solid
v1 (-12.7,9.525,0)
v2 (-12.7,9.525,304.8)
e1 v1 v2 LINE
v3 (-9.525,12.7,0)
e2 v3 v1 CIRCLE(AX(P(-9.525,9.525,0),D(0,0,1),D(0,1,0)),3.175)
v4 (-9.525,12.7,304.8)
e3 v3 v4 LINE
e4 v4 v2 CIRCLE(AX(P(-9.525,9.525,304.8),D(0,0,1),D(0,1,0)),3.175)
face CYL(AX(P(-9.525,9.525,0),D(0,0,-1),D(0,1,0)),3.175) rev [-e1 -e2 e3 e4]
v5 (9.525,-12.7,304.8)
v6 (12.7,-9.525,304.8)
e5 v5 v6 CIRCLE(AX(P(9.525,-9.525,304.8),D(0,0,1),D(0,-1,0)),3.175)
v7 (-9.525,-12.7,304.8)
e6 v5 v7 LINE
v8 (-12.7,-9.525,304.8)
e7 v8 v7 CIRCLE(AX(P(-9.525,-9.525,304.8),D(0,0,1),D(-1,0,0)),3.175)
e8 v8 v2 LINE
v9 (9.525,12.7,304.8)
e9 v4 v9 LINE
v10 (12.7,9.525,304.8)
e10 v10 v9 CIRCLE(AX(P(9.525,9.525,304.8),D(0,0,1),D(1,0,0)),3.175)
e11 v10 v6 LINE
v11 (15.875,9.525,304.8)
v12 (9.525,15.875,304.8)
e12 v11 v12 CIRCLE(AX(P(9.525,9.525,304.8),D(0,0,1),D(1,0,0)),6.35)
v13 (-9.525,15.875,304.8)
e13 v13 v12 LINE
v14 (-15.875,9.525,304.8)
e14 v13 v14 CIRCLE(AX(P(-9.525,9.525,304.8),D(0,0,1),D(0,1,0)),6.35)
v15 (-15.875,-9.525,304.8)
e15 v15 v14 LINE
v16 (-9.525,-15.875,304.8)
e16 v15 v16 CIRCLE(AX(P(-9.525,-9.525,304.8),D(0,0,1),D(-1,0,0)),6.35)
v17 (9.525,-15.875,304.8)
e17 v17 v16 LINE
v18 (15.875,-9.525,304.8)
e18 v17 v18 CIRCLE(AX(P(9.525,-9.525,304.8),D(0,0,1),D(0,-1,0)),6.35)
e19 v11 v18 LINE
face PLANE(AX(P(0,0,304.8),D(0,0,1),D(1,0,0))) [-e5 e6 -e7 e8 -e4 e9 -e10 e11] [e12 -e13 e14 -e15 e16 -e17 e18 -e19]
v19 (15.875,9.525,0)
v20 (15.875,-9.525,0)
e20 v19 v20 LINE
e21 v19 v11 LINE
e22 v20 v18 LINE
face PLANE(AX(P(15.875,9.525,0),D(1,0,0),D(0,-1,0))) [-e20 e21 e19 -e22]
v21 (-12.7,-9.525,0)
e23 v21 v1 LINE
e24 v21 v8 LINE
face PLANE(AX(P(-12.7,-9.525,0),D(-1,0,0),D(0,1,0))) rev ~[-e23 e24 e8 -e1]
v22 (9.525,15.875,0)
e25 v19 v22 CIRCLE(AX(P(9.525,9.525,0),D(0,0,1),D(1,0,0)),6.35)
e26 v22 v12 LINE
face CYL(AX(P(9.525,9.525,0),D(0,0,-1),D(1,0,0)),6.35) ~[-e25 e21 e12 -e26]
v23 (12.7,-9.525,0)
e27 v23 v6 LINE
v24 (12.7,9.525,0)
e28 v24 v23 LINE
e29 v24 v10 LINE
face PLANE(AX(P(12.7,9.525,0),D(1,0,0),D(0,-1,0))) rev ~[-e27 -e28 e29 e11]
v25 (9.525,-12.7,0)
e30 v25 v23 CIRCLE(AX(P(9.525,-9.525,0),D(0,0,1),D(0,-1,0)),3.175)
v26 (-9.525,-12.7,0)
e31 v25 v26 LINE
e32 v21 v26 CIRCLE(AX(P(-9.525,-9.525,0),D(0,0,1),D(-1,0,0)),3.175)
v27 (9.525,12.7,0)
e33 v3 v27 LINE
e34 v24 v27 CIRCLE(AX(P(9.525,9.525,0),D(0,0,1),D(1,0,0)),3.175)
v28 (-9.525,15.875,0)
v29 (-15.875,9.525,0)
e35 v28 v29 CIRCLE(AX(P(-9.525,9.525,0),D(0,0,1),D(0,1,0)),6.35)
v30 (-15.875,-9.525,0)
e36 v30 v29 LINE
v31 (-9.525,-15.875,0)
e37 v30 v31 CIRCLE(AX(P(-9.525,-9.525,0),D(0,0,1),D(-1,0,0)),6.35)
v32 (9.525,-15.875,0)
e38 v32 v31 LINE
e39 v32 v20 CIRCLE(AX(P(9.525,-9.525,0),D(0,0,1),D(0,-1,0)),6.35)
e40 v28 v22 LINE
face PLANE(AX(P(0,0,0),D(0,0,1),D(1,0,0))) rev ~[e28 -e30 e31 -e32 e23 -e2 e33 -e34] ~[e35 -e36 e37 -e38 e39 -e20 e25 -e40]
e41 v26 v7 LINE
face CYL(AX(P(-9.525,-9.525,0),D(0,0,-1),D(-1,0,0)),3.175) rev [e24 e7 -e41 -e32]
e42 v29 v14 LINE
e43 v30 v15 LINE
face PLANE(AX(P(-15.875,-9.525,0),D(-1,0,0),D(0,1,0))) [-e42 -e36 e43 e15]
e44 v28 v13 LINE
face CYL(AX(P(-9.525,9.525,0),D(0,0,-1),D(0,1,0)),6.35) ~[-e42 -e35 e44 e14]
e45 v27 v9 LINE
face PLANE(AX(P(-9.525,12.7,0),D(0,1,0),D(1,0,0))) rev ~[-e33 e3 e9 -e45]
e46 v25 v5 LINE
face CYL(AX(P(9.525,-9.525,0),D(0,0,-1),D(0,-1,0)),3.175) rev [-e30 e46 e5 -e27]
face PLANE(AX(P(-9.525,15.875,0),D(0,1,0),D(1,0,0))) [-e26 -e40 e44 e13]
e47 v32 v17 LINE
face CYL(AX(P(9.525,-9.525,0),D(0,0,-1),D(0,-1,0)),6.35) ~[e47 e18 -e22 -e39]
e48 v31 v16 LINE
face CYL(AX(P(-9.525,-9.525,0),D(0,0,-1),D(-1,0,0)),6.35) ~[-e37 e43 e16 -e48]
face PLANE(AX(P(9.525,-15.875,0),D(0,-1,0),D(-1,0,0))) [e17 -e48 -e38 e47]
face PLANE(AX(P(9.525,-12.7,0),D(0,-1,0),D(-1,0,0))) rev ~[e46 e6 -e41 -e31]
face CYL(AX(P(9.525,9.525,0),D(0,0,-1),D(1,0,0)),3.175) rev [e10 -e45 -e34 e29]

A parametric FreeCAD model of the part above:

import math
import FreeCAD as App
import Part
import Sketcher

V = App.Vector
Q = App.Units.Quantity

doc = App.newDocument("Part")
body = doc.addObject("PartDesign::Body", "Body")

# Sketch on XY plane
sketch1 = body.newObject("Sketcher::SketchObject", "Sketch")
sketch1.AttachmentSupport = (doc.getObject("XY_Plane"), [""])
sketch1.MapMode = "FlatFace"
sketch1.addGeometry([
    Part.LineSegment(V(-15.875, 9.525, 0), V(-15.875, -9.525, 0)),  # 0
    Part.ArcOfCircle(Part.Circle(V(-9.525, -9.525, 0), V(0, 0, 1), 6.35), math.radians(180), math.radians(270)),  # 1
    Part.LineSegment(V(-9.525, -15.875, 0), V(9.525, -15.875, 0)),  # 2
    Part.ArcOfCircle(Part.Circle(V(9.525, -9.525, 0), V(0, 0, 1), 6.35), math.radians(-90), math.radians(0)),  # 3
    Part.LineSegment(V(15.875, -9.525, 0), V(15.875, 9.525, 0)),  # 4
    Part.ArcOfCircle(Part.Circle(V(9.525, 9.525, 0), V(0, 0, 1), 6.35), math.radians(0), math.radians(90)),  # 5
    Part.LineSegment(V(9.525, 15.875, 0), V(-9.525, 15.875, 0)),  # 6
    Part.ArcOfCircle(Part.Circle(V(-9.525, 9.525, 0), V(0, 0, 1), 6.35), math.radians(90), math.radians(180)),  # 7
    Part.ArcOfCircle(Part.Circle(V(-9.525, 9.525, 0), V(0, 0, 1), 3.175), math.radians(90), math.radians(180)),  # 8
    Part.LineSegment(V(-9.525, 12.7, 0), V(9.525, 12.7, 0)),  # 9
    Part.ArcOfCircle(Part.Circle(V(9.525, 9.525, 0), V(0, 0, 1), 3.175), math.radians(0), math.radians(90)),  # 10
    Part.LineSegment(V(12.7, 9.525, 0), V(12.7, -9.525, 0)),  # 11
    Part.ArcOfCircle(Part.Circle(V(9.525, -9.525, 0), V(0, 0, 1), 3.175), math.radians(-90), math.radians(0)),  # 12
    Part.LineSegment(V(9.525, -12.7, 0), V(-9.525, -12.7, 0)),  # 13
    Part.ArcOfCircle(Part.Circle(V(-9.525, -9.525, 0), V(0, 0, 1), 3.175), math.radians(180), math.radians(270)),  # 14
    Part.LineSegment(V(-12.7, -9.525, 0), V(-12.7, 9.525, 0)),  # 15
], False)
sketch1.addConstraint([
    Sketcher.Constraint("Tangent", 0, 2, 1, 1),
    Sketcher.Constraint("Tangent", 1, 2, 2, 1),
    Sketcher.Constraint("Tangent", 2, 2, 3, 1),
    Sketcher.Constraint("Tangent", 3, 2, 4, 1),
    Sketcher.Constraint("Tangent", 4, 2, 5, 1),
    Sketcher.Constraint("Tangent", 5, 2, 6, 1),
    Sketcher.Constraint("Tangent", 6, 2, 7, 1),
    Sketcher.Constraint("Tangent", 7, 2, 0, 1),
    Sketcher.Constraint("Tangent", 8, 1, 9, 1),
    Sketcher.Constraint("Tangent", 9, 2, 10, 2),
    Sketcher.Constraint("Tangent", 10, 1, 11, 1),
    Sketcher.Constraint("Tangent", 11, 2, 12, 2),
    Sketcher.Constraint("Tangent", 12, 1, 13, 1),
    Sketcher.Constraint("Tangent", 13, 2, 14, 2),
    Sketcher.Constraint("Tangent", 14, 1, 15, 1),
    Sketcher.Constraint("Tangent", 15, 2, 8, 2),
    Sketcher.Constraint("Vertical", 0),
    Sketcher.Constraint("Horizontal", 2),
    Sketcher.Constraint("Vertical", 4),
    Sketcher.Constraint("Horizontal", 6),
    Sketcher.Constraint("Horizontal", 9),
    Sketcher.Constraint("Vertical", 11),
    Sketcher.Constraint("Horizontal", 13),
    Sketcher.Constraint("Vertical", 15),
    Sketcher.Constraint("Coincident", 8, 3, 7, 3),
    Sketcher.Constraint("Coincident", 10, 3, 5, 3),
    Sketcher.Constraint("Coincident", 12, 3, 3, 3),
    Sketcher.Constraint("Equal", 1, 3),
    Sketcher.Constraint("Equal", 3, 5),
    Sketcher.Constraint("Equal", 5, 7),
    Sketcher.Constraint("Equal", 12, 14),
    Sketcher.Constraint("Symmetric", 1, 3, 5, 3, -1, 1),
    Sketcher.Constraint("Equal", 13, 0),
    Sketcher.Constraint("Radius", 1, Q("0.25 in")),
    Sketcher.Constraint("Radius", 8, Q("0.125 in")),
    Sketcher.Constraint("DistanceX", 0, 2, -1, 1, Q("0.625 in")),
])
pad1 = body.newObject("PartDesign::Pad", "Pad")
pad1.Profile = sketch1
pad1.Length = Q("12 in")

doc.recompute()
